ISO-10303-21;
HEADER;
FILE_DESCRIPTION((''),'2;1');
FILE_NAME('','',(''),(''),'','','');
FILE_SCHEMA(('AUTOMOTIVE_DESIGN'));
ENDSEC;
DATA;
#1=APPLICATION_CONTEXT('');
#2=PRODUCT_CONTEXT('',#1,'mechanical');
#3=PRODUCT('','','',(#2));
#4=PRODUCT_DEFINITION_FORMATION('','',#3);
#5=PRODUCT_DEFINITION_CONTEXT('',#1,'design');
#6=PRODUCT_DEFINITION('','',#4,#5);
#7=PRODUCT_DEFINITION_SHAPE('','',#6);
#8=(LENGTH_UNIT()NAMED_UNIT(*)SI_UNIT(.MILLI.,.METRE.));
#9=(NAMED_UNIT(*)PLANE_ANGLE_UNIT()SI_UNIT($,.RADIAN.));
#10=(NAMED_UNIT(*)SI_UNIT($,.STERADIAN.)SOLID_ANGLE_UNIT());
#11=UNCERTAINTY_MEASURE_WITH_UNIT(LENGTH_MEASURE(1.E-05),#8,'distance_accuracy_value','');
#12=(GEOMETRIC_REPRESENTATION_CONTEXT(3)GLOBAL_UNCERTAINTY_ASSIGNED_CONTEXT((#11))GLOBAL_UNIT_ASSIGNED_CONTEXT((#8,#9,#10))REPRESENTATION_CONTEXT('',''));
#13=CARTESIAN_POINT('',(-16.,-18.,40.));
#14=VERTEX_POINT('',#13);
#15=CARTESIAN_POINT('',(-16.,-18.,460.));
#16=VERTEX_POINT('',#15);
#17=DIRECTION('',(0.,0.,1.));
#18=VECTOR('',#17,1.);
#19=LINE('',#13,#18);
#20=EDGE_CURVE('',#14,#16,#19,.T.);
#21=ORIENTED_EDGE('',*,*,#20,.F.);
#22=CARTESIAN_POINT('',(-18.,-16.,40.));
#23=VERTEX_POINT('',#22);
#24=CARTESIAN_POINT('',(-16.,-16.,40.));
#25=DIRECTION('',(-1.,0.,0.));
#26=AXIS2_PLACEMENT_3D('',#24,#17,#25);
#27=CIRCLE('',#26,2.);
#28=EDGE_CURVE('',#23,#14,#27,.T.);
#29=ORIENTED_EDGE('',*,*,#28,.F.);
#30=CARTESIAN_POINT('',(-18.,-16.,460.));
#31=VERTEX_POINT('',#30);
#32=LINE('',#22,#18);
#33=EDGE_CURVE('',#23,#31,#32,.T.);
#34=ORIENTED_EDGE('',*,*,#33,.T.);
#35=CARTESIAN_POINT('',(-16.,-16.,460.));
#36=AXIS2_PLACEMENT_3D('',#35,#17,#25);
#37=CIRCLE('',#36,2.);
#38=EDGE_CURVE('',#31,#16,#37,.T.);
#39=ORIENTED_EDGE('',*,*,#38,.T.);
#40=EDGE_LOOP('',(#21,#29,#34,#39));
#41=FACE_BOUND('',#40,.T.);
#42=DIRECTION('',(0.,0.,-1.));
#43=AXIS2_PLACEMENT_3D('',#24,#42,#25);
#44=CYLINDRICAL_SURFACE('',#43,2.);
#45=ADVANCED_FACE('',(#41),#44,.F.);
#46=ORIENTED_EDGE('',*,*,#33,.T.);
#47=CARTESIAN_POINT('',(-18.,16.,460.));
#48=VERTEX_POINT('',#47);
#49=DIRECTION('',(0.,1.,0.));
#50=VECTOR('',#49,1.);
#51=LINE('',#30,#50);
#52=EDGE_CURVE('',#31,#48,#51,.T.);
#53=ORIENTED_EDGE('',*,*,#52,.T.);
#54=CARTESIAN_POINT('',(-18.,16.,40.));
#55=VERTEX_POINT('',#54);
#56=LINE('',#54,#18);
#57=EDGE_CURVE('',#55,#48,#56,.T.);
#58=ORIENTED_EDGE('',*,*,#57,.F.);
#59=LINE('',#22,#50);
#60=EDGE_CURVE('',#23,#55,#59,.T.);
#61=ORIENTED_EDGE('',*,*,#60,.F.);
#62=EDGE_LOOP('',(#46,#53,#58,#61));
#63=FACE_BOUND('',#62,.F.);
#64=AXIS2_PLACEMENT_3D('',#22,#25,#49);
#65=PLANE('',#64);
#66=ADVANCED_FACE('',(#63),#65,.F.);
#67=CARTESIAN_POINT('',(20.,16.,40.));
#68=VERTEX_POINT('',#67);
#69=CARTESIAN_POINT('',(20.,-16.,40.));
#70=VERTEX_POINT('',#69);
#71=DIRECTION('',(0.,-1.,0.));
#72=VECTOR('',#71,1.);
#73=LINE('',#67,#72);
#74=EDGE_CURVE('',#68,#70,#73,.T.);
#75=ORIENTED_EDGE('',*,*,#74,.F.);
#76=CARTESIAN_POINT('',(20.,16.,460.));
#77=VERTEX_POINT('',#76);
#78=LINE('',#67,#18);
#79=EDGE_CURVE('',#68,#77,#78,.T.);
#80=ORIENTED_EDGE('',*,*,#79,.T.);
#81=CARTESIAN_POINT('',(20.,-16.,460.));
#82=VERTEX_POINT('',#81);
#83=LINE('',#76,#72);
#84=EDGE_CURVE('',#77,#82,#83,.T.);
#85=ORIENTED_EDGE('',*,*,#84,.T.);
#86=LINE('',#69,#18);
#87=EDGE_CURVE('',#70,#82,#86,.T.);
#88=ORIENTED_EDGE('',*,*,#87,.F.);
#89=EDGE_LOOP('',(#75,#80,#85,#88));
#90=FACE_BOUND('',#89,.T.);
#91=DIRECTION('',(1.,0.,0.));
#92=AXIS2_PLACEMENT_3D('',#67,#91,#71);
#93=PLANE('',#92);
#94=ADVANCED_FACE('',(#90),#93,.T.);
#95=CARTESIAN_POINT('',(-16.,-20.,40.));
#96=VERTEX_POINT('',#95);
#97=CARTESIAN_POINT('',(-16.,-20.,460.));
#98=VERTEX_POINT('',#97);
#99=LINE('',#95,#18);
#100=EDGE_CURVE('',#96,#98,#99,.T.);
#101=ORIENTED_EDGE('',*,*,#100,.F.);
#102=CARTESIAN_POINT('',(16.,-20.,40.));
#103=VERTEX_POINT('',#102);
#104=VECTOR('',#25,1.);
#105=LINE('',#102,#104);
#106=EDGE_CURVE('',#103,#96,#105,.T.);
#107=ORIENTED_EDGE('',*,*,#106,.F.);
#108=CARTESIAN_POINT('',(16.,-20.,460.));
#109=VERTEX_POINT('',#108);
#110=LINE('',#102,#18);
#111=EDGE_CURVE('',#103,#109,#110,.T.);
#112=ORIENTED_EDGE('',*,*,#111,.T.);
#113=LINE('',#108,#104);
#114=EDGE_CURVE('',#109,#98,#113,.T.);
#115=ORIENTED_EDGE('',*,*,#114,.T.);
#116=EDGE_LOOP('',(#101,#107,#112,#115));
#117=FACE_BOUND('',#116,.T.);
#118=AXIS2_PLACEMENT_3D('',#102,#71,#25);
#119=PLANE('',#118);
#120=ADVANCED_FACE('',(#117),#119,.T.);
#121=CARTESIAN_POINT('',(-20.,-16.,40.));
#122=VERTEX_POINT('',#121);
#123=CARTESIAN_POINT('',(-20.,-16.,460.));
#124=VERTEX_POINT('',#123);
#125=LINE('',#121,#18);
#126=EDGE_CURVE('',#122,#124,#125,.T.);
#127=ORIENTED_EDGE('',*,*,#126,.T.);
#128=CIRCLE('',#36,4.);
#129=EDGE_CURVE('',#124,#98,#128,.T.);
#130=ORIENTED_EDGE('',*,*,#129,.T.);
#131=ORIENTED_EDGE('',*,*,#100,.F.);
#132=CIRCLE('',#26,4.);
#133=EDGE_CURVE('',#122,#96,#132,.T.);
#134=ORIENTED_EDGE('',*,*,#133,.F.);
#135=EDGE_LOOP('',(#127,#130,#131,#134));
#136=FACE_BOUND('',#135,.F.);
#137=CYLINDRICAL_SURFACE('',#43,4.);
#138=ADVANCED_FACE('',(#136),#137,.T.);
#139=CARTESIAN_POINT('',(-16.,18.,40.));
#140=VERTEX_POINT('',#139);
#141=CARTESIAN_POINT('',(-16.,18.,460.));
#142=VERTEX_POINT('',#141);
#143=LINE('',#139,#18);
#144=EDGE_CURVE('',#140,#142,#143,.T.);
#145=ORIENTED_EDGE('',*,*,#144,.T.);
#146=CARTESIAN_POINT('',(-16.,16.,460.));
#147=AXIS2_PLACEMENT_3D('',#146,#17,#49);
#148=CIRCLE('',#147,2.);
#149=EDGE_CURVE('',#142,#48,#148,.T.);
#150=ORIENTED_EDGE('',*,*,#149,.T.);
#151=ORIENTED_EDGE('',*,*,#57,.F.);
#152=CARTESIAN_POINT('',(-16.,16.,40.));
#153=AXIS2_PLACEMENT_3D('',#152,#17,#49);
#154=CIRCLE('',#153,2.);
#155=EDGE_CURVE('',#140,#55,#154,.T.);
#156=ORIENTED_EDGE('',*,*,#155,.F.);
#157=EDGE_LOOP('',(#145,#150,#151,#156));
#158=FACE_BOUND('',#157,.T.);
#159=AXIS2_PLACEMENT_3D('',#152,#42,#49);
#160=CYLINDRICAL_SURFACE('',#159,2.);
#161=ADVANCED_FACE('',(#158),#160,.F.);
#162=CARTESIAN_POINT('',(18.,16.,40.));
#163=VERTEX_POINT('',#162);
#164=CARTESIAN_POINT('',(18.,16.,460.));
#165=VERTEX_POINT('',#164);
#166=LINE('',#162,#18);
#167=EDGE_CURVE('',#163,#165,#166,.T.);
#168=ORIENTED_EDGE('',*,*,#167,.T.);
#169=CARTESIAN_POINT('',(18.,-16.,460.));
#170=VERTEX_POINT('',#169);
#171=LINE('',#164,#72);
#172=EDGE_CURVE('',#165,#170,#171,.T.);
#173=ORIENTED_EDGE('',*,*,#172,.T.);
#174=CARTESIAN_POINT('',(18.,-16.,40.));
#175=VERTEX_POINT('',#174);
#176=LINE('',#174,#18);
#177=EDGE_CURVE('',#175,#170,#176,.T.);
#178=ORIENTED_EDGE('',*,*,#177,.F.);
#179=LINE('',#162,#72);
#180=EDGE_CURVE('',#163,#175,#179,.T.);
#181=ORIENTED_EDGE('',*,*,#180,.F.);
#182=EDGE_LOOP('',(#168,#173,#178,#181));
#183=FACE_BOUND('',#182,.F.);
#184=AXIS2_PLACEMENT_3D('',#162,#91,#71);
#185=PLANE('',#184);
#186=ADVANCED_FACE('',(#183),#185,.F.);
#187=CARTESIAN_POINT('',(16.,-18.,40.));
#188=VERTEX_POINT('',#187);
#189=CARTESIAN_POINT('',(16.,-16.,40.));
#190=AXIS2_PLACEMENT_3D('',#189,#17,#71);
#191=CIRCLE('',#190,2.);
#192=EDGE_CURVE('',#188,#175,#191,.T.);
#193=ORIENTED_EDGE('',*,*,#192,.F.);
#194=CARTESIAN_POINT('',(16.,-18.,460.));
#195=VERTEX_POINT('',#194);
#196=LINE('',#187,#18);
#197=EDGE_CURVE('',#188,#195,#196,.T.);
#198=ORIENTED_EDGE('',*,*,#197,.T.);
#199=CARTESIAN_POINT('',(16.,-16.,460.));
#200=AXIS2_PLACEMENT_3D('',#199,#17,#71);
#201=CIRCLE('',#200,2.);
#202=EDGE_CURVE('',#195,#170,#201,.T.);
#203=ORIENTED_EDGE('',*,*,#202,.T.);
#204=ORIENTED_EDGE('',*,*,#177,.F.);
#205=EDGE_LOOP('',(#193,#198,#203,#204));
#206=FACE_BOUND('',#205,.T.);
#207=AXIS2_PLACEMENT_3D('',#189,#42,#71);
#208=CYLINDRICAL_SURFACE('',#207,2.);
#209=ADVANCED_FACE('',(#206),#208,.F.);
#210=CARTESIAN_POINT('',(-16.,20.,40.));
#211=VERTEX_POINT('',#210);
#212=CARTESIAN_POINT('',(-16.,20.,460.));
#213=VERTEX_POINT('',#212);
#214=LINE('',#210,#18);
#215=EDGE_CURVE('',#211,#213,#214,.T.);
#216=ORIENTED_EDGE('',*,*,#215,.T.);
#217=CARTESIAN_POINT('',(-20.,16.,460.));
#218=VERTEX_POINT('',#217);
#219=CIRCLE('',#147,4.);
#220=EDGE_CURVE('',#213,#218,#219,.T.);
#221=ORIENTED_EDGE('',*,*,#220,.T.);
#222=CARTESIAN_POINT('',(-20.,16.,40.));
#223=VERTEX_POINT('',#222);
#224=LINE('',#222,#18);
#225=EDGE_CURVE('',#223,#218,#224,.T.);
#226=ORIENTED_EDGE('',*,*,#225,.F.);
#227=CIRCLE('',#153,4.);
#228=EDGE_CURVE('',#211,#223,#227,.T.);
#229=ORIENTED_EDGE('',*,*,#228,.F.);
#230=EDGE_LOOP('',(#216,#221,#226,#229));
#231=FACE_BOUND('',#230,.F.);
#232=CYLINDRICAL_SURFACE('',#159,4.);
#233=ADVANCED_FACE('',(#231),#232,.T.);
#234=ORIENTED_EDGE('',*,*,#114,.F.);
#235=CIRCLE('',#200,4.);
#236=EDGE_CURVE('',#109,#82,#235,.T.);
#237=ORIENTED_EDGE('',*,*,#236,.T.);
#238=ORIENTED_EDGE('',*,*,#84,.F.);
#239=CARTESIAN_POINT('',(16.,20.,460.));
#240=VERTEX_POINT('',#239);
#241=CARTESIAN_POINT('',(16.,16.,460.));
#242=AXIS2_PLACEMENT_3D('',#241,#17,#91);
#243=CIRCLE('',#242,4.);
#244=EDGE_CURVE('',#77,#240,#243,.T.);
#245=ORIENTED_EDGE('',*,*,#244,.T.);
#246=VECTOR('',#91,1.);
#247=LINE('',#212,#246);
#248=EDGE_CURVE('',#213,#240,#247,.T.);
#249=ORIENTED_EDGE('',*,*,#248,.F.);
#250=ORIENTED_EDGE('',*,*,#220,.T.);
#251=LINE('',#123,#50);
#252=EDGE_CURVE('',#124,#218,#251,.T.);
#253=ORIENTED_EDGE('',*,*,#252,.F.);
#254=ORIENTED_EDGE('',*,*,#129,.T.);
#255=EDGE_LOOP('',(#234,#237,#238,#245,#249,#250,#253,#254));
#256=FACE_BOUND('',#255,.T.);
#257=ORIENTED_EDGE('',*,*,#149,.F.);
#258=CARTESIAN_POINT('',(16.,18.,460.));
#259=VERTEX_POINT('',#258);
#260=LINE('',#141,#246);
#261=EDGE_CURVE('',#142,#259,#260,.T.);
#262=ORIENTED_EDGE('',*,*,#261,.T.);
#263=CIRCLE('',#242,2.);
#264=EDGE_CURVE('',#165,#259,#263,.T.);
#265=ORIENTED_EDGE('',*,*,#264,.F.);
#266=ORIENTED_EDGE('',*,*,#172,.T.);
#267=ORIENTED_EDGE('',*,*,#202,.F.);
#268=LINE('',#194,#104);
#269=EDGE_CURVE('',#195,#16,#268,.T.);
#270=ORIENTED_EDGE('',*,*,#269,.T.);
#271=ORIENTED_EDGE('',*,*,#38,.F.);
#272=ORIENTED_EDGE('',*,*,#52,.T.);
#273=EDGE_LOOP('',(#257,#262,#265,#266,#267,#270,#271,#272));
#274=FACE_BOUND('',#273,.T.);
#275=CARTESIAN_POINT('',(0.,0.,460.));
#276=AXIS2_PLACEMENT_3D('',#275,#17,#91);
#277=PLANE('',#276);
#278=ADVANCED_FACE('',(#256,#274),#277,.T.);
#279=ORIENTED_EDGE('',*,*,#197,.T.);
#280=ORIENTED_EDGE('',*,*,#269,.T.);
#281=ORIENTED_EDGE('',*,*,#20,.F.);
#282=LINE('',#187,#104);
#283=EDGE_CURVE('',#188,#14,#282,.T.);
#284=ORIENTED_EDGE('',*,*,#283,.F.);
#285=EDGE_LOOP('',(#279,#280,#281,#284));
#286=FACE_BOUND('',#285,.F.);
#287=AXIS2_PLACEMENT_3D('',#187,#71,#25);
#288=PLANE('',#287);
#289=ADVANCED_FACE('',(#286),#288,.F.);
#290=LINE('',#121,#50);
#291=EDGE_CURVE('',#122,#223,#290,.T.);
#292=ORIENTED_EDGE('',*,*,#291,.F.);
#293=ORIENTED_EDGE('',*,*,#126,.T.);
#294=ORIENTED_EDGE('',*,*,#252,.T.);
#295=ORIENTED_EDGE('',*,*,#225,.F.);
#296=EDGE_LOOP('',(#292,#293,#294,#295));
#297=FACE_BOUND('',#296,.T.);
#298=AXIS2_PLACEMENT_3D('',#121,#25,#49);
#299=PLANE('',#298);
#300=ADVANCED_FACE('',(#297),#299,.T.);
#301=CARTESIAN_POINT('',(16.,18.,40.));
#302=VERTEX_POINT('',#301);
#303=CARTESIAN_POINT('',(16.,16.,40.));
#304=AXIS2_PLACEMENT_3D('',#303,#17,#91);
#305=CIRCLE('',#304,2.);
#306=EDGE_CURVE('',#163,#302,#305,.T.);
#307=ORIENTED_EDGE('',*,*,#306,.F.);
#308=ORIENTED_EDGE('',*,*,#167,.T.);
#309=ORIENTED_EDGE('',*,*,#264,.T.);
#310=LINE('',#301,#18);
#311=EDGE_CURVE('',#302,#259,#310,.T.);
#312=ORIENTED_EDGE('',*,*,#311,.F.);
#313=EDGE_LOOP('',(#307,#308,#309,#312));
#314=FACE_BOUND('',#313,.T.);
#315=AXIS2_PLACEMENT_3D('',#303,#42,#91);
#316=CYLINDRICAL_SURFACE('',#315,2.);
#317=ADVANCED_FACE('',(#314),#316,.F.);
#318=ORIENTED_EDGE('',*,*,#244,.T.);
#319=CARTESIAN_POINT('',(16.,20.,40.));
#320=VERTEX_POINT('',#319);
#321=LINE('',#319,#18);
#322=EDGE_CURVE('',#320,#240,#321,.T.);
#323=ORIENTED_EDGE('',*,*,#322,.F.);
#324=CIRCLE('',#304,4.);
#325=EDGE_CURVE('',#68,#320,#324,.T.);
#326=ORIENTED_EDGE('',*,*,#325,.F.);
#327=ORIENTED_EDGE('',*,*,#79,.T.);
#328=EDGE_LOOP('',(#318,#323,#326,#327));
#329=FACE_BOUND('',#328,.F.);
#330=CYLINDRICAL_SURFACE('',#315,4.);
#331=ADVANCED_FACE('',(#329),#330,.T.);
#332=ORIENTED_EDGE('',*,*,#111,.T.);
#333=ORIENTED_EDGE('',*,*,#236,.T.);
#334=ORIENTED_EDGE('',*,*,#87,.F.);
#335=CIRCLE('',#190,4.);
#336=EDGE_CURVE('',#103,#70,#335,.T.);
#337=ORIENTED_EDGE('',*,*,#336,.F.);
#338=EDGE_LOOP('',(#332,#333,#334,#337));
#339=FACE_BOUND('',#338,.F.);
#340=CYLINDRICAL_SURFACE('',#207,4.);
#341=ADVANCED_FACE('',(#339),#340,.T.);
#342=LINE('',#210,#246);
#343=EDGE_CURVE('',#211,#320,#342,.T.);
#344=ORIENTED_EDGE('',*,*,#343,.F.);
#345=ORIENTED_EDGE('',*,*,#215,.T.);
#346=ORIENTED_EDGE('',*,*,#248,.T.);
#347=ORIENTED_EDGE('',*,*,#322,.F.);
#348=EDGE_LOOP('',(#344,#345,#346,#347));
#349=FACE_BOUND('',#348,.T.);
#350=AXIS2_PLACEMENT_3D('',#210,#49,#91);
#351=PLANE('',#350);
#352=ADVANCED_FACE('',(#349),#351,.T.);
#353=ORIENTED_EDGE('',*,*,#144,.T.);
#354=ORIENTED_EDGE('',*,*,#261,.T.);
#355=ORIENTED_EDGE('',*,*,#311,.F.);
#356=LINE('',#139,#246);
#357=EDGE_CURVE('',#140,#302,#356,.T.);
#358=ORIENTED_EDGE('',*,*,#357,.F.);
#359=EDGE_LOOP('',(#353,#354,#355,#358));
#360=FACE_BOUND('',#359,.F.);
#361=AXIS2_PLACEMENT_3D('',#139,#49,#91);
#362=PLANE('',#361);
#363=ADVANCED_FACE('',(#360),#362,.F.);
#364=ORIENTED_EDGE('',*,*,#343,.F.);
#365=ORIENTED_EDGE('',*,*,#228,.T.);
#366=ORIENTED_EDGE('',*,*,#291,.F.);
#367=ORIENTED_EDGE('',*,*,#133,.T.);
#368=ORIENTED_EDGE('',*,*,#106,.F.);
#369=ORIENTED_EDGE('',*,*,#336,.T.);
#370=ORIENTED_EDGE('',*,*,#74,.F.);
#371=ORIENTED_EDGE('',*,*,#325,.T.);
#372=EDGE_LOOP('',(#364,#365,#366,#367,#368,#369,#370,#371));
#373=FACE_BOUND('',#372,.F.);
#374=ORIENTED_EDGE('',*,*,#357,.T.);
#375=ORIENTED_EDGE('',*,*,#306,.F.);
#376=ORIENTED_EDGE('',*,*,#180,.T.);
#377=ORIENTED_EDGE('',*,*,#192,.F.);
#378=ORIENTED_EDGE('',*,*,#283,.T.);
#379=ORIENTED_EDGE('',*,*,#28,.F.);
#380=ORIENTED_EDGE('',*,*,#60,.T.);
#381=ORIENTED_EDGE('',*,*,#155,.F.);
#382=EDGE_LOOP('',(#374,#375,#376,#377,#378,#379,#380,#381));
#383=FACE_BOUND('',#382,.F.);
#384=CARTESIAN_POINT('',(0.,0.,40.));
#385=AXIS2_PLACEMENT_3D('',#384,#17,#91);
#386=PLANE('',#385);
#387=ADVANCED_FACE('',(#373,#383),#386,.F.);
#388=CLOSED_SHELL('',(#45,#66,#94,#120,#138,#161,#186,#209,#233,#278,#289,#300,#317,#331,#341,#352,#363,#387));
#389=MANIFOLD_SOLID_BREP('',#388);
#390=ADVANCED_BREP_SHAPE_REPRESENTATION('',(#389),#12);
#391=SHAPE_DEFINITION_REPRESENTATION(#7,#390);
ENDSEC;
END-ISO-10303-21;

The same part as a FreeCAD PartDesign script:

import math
import FreeCAD as App
import Part
import Sketcher
from FreeCAD import Vector

doc = App.newDocument("Part")
body = doc.addObject("PartDesign::Body", "Body")

sketch1 = body.newObject("Sketcher::SketchObject", "Sketch")
sketch1.AttachmentSupport = (doc.getObject("XY_Plane"), [""])
sketch1.MapMode = "FlatFace"
sketch1.AttachmentOffset = App.Placement(Vector(0, 0, 40), App.Rotation())
sketch1.addGeometry(Part.LineSegment(Vector(-20, 16, 0), Vector(-20, -16, 0)), False)
sketch1.addGeometry(Part.ArcOfCircle(Part.Circle(Vector(-16, -16, 0), Vector(0, 0, 1), 4), math.radians(180), math.radians(270)), False)
sketch1.addGeometry(Part.LineSegment(Vector(-16, -20, 0), Vector(16, -20, 0)), False)
sketch1.addGeometry(Part.ArcOfCircle(Part.Circle(Vector(16, -16, 0), Vector(0, 0, 1), 4), math.radians(-90), math.radians(0)), False)
sketch1.addGeometry(Part.LineSegment(Vector(20, -16, 0), Vector(20, 16, 0)), False)
sketch1.addGeometry(Part.ArcOfCircle(Part.Circle(Vector(16, 16, 0), Vector(0, 0, 1), 4), math.radians(0), math.radians(90)), False)
sketch1.addGeometry(Part.LineSegment(Vector(16, 20, 0), Vector(-16, 20, 0)), False)
sketch1.addGeometry(Part.ArcOfCircle(Part.Circle(Vector(-16, 16, 0), Vector(0, 0, 1), 4), math.radians(90), math.radians(180)), False)
sketch1.addGeometry(Part.ArcOfCircle(Part.Circle(Vector(-16, 16, 0), Vector(0, 0, 1), 2), math.radians(90), math.radians(180)), False)
sketch1.addGeometry(Part.LineSegment(Vector(-16, 18, 0), Vector(16, 18, 0)), False)
sketch1.addGeometry(Part.ArcOfCircle(Part.Circle(Vector(16, 16, 0), Vector(0, 0, 1), 2), math.radians(0), math.radians(90)), False)
sketch1.addGeometry(Part.LineSegment(Vector(18, 16, 0), Vector(18, -16, 0)), False)
sketch1.addGeometry(Part.ArcOfCircle(Part.Circle(Vector(16, -16, 0), Vector(0, 0, 1), 2), math.radians(-90), math.radians(0)), False)
sketch1.addGeometry(Part.LineSegment(Vector(16, -18, 0), Vector(-16, -18, 0)), False)
sketch1.addGeometry(Part.ArcOfCircle(Part.Circle(Vector(-16, -16, 0), Vector(0, 0, 1), 2), math.radians(180), math.radians(270)), False)
sketch1.addGeometry(Part.LineSegment(Vector(-18, -16, 0), Vector(-18, 16, 0)), False)
sketch1.addConstraint(Sketcher.Constraint("Tangent", 0, 2, 1, 1))
sketch1.addConstraint(Sketcher.Constraint("Tangent", 1, 2, 2, 1))
sketch1.addConstraint(Sketcher.Constraint("Tangent", 2, 2, 3, 1))
sketch1.addConstraint(Sketcher.Constraint("Tangent", 3, 2, 4, 1))
sketch1.addConstraint(Sketcher.Constraint("Tangent", 4, 2, 5, 1))
sketch1.addConstraint(Sketcher.Constraint("Tangent", 5, 2, 6, 1))
sketch1.addConstraint(Sketcher.Constraint("Tangent", 6, 2, 7, 1))
sketch1.addConstraint(Sketcher.Constraint("Tangent", 7, 2, 0, 1))
sketch1.addConstraint(Sketcher.Constraint("Tangent", 8, 1, 9, 1))
sketch1.addConstraint(Sketcher.Constraint("Tangent", 9, 2, 10, 2))
sketch1.addConstraint(Sketcher.Constraint("Tangent", 10, 1, 11, 1))
sketch1.addConstraint(Sketcher.Constraint("Tangent", 11, 2, 12, 2))
sketch1.addConstraint(Sketcher.Constraint("Tangent", 12, 1, 13, 1))
sketch1.addConstraint(Sketcher.Constraint("Tangent", 13, 2, 14, 2))
sketch1.addConstraint(Sketcher.Constraint("Tangent", 14, 1, 15, 1))
sketch1.addConstraint(Sketcher.Constraint("Tangent", 15, 2, 8, 2))
sketch1.addConstraint(Sketcher.Constraint("Vertical", 0))
sketch1.addConstraint(Sketcher.Constraint("Horizontal", 2))
sketch1.addConstraint(Sketcher.Constraint("Vertical", 4))
sketch1.addConstraint(Sketcher.Constraint("Horizontal", 6))
sketch1.addConstraint(Sketcher.Constraint("Horizontal", 9))
sketch1.addConstraint(Sketcher.Constraint("Vertical", 11))
sketch1.addConstraint(Sketcher.Constraint("Horizontal", 13))
sketch1.addConstraint(Sketcher.Constraint("Vertical", 15))
sketch1.addConstraint(Sketcher.Constraint("Coincident", 8, 3, 7, 3))
sketch1.addConstraint(Sketcher.Constraint("Coincident", 10, 3, 5, 3))
sketch1.addConstraint(Sketcher.Constraint("Coincident", 12, 3, 3, 3))
sketch1.addConstraint(Sketcher.Constraint("Equal", 1, 3))
sketch1.addConstraint(Sketcher.Constraint("Equal", 3, 5))
sketch1.addConstraint(Sketcher.Constraint("Equal", 5, 7))
sketch1.addConstraint(Sketcher.Constraint("Equal", 12, 14))
sketch1.addConstraint(Sketcher.Constraint("Symmetric", 1, 3, 5, 3, -1, 1))
sketch1.addConstraint(Sketcher.Constraint("Equal", 13, 0))
sketch1.addConstraint(Sketcher.Constraint("Radius", 1, 4.0))
sketch1.addConstraint(Sketcher.Constraint("Radius", 8, 2.0))
sketch1.addConstraint(Sketcher.Constraint("DistanceX", 0, 2, -1, 1, 20.0))
pad1 = body.newObject("PartDesign::Pad", "Pad")
pad1.Profile = sketch1
pad1.Length = 420

doc.recompute()
